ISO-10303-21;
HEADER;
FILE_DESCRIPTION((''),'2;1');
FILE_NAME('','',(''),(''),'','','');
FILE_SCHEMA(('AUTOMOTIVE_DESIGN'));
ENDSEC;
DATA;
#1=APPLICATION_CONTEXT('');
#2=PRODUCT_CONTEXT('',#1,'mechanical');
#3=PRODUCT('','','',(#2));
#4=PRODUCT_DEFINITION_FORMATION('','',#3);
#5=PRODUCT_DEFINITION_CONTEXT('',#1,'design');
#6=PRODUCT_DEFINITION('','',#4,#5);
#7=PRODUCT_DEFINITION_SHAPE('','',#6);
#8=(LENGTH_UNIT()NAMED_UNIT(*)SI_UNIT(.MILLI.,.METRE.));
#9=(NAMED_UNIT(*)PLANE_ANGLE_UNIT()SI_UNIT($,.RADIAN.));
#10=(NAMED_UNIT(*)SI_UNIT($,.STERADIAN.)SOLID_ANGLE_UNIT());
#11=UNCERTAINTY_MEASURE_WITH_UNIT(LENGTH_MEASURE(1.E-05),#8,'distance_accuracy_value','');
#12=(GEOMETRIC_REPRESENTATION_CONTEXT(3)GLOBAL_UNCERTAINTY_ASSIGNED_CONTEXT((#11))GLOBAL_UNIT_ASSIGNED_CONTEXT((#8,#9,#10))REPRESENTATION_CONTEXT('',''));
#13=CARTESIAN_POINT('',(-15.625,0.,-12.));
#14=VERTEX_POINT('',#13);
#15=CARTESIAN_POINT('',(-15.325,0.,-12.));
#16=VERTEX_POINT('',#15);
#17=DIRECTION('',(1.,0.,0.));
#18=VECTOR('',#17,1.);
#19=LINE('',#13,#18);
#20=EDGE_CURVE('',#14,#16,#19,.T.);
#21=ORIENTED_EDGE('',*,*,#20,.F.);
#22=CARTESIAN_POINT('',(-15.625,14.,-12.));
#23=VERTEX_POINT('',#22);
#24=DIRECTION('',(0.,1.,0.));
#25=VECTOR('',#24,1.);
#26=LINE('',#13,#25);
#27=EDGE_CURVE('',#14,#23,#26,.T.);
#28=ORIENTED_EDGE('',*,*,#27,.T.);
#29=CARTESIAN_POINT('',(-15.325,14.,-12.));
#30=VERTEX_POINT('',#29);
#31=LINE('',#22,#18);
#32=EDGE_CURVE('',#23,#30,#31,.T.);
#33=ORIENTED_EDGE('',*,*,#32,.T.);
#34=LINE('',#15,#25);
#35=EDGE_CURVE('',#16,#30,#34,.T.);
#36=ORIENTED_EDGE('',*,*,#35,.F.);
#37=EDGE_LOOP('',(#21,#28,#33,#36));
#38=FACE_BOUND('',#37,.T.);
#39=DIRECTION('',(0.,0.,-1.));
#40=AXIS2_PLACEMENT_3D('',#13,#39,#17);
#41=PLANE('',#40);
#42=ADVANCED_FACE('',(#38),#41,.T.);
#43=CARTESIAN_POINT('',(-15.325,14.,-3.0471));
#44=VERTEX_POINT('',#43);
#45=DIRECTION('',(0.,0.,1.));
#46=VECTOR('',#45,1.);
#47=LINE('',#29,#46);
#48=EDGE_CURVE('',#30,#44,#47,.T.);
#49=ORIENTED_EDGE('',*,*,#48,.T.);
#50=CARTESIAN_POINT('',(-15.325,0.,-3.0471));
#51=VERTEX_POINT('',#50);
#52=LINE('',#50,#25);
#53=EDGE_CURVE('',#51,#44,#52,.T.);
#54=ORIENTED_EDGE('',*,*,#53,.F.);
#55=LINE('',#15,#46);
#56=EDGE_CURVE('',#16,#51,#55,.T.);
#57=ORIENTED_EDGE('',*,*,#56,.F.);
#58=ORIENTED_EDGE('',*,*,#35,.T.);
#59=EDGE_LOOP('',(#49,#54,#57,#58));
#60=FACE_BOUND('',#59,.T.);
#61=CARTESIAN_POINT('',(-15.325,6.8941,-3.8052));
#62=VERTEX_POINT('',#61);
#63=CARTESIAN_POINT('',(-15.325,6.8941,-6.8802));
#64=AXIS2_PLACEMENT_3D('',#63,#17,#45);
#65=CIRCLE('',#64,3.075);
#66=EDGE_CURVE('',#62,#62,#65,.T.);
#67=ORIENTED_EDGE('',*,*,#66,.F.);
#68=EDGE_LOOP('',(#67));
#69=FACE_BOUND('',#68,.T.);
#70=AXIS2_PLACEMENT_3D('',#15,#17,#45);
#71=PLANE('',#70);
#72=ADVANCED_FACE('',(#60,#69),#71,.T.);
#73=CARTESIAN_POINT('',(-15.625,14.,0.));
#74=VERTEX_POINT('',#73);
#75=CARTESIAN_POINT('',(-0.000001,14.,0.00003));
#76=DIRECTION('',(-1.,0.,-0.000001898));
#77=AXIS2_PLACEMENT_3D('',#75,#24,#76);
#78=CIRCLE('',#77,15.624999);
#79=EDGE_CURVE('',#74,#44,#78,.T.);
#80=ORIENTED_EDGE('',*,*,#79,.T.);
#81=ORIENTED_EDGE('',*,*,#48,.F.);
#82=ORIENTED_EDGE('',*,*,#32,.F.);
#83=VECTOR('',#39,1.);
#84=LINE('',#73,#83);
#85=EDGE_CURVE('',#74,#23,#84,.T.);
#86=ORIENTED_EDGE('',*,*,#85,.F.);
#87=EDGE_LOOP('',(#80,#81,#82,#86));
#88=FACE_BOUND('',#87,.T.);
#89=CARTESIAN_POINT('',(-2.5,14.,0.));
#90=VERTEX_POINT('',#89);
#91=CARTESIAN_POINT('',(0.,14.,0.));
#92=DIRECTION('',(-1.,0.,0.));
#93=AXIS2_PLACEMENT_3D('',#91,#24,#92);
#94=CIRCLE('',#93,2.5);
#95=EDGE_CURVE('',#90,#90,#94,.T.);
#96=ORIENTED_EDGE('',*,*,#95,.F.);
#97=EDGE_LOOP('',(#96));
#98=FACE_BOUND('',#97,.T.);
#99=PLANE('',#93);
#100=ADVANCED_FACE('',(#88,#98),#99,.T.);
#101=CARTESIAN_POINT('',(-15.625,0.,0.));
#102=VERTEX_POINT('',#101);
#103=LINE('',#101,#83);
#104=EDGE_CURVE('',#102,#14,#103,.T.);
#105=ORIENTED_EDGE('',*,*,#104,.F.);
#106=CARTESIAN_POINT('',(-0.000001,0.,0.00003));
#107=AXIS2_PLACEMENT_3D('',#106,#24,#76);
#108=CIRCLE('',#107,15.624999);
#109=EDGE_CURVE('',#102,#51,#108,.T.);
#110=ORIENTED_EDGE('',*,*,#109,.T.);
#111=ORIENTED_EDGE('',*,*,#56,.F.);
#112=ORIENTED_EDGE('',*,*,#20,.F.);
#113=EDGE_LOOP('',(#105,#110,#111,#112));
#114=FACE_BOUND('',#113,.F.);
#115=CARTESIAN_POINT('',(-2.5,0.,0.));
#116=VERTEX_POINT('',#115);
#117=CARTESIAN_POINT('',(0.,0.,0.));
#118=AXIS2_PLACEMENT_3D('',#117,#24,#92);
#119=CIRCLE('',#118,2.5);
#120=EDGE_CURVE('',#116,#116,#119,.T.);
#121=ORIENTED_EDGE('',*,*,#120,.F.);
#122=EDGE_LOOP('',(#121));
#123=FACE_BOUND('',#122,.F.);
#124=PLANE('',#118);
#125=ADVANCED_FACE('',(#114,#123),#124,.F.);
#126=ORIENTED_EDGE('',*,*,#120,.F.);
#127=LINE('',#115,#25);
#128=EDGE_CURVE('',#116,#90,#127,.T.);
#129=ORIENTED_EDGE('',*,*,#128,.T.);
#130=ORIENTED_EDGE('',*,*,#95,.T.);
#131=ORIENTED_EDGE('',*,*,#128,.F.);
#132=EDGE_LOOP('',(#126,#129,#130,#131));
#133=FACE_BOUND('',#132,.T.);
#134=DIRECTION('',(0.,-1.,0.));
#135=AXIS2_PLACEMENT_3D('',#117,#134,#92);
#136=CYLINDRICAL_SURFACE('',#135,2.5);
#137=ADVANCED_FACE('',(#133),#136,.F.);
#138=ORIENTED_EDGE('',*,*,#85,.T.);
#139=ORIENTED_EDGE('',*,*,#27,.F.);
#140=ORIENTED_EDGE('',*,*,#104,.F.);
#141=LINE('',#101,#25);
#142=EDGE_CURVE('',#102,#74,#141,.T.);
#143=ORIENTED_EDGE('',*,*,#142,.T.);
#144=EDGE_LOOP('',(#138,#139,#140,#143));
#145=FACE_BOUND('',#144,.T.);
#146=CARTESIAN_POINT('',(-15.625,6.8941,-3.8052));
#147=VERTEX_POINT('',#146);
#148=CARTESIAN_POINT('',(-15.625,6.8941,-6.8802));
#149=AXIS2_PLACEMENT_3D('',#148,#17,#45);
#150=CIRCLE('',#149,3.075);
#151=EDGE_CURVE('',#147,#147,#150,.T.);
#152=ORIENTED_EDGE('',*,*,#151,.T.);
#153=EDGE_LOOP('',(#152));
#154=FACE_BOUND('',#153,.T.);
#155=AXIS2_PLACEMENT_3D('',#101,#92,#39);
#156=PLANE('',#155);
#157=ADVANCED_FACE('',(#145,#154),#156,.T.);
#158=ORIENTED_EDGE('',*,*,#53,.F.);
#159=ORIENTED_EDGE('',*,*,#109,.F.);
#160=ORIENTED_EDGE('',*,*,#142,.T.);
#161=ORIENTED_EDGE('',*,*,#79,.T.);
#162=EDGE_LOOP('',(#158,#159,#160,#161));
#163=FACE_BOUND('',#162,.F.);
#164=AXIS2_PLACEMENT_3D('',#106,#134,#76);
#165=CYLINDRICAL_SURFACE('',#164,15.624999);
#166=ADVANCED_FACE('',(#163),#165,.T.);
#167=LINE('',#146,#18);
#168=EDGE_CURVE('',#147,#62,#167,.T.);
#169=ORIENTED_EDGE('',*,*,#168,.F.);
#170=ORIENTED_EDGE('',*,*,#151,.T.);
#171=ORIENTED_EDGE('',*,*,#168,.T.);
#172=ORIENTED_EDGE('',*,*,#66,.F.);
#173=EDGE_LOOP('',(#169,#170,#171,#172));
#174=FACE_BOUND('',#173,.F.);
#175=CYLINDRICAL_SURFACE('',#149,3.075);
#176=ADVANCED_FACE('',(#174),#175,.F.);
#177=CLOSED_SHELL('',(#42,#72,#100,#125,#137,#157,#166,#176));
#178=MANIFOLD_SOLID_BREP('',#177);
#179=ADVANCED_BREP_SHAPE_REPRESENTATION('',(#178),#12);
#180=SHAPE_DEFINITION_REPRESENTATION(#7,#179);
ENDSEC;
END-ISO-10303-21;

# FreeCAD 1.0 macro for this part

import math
import FreeCAD as App
import Part
import Sketcher

V = App.Vector
Q = App.Units.Quantity

doc = App.newDocument("Part")
params = doc.addObject("Spreadsheet::Sheet", "Params")
for row, (alias, value) in enumerate([
    ("sketch1_diameter", "5 mm"),
    ("sketch1_height", "12 mm"),
    ("sketch1_width", "0.3 mm"),
    ("pad1_length", "14 mm"),
    ("sketch2_diameter", "6.15 mm"),
    ("hole_diameter", "6.15 mm"),
    ("hole_depth", "0.3 mm"),
], start=1):
    params.set(f"A{row}", alias)
    params.set(f"B{row}", "=" + value)
    params.setAlias(f"B{row}", alias)

body = doc.addObject("PartDesign::Body", "Body")

sketch1 = body.newObject("Sketcher::SketchObject", "Sketch")
sketch1.AttachmentSupport = (doc.getObject("XZ_Plane"), [""])
sketch1.MapMode = "FlatFace"
sketch1.addGeometry(Part.LineSegment(V(-15.62, -12, 0), V(-15.62, 0, 0)), False)
sketch1.addGeometry(Part.ArcOfCircle(Part.Circle(V(0, 0, 0), V(0, 0, 1), 15.62), math.radians(-169), math.radians(180)), False)
sketch1.addGeometry(Part.LineSegment(V(-15.32, -3.05, 0), V(-15.32, -12, 0)), False)
sketch1.addGeometry(Part.LineSegment(V(-15.32, -12, 0), V(-15.62, -12, 0)), False)
sketch1.addGeometry(Part.Circle(V(0, 0, 0), V(0, 0, 1), 2.5), False)
sketch1.addConstraint(Sketcher.Constraint("Tangent", 0, 2, 1, 2))
sketch1.addConstraint(Sketcher.Constraint("Coincident", 1, 1, 2, 1))
sketch1.addConstraint(Sketcher.Constraint("Coincident", 2, 2, 3, 1))
sketch1.addConstraint(Sketcher.Constraint("Coincident", 3, 2, 0, 1))
sketch1.addConstraint(Sketcher.Constraint("Vertical", 0))
sketch1.addConstraint(Sketcher.Constraint("Vertical", 2))
sketch1.addConstraint(Sketcher.Constraint("Horizontal", 3))
sketch1.addConstraint(Sketcher.Constraint("Coincident", 1, 3, -1, 1))
sketch1.addConstraint(Sketcher.Constraint("Coincident", 4, 3, -1, 1))
sketch1.addConstraint(Sketcher.Constraint("Diameter", 4, Q("5 mm")))
sketch1.addConstraint(Sketcher.Constraint("DistanceY", 0, 1, 0, 2, Q("12 mm")))
sketch1.addConstraint(Sketcher.Constraint("DistanceX", 3, 2, 3, 1, Q("0.3 mm")))
sketch1.addConstraint(Sketcher.Constraint("Radius", 1, Q("15.625 mm")))
sketch1.setExpression("Constraints[9]", "Params.sketch1_diameter")
sketch1.setExpression("Constraints[10]", "Params.sketch1_height")
sketch1.setExpression("Constraints[11]", "Params.sketch1_width")
pad1 = body.newObject("PartDesign::Pad", "Pad")
pad1.Profile = sketch1
pad1.setExpression("Length", "Params.pad1_length")
pad1.Reversed = True

sketch2 = body.newObject("Sketcher::SketchObject", "Sketch001")
sketch2.AttachmentSupport = (doc.getObject("YZ_Plane"), [""])
sketch2.MapMode = "FlatFace"
sketch2.AttachmentOffset = App.Placement(V(0, 0, -15.625), App.Rotation())
sketch2.addGeometry(Part.Circle(V(6.9, -6.9, 0), V(0, 0, 1), 3.1), False)
sketch2.addConstraint(Sketcher.Constraint("Diameter", 0, Q("6.15 mm")))
sketch2.addConstraint(Sketcher.Constraint("DistanceX", -1, 1, 0, 3, Q("6.894 mm")))
sketch2.addConstraint(Sketcher.Constraint("DistanceY", 0, 3, -1, 1, Q("6.8802 mm")))
sketch2.setExpression("Constraints[0]", "Params.sketch2_diameter")
doc.recompute()
hole = body.newObject("PartDesign::Hole", "Hole")
hole.Profile = sketch2
hole.ThreadType = "None"
hole.setExpression("Diameter", "Params.hole_diameter")
hole.DepthType = "Dimension"
hole.setExpression("Depth", "Params.hole_depth")
hole.DrillPoint = "Flat"
hole.Reversed = True

doc.recompute()
